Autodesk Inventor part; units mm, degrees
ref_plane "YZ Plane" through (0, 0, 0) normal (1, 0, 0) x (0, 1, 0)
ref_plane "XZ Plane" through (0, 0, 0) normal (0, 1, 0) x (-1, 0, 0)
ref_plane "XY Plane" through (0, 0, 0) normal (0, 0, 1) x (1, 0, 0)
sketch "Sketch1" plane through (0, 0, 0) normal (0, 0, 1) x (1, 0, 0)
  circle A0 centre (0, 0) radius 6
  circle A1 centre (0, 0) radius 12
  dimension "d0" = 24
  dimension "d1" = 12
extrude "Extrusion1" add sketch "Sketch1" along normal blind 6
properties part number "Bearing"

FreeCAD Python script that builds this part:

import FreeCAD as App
import Part
import Sketcher
from FreeCAD import Vector

doc = App.newDocument("Part")
body = doc.addObject("PartDesign::Body", "Body")

sketch1 = doc.addObject("Sketcher::SketchObject", "Sketch")
body.addObject(sketch1)
sketch1.AttachmentSupport = (doc.XY_Plane, [""])
sketch1.MapMode = "FlatFace"
sketch1.addGeometry(Part.Circle(Vector(0, 0, 0), Vector(0, 0, 1), 12), False)
sketch1.addGeometry(Part.Circle(Vector(0, 0, 0), Vector(0, 0, 1), 6), False)
sketch1.addConstraint(Sketcher.Constraint("Coincident", 0, 3, -1, 1))
sketch1.addConstraint(Sketcher.Constraint("Coincident", 1, 3, -1, 1))
sketch1.addConstraint(Sketcher.Constraint("Diameter", 0, 24.0))
sketch1.addConstraint(Sketcher.Constraint("Diameter", 1, 12.0))
pad1 = doc.addObject("PartDesign::Pad", "Pad")
body.addObject(pad1)
pad1.Profile = sketch1
pad1.Length = 6

doc.recompute()
